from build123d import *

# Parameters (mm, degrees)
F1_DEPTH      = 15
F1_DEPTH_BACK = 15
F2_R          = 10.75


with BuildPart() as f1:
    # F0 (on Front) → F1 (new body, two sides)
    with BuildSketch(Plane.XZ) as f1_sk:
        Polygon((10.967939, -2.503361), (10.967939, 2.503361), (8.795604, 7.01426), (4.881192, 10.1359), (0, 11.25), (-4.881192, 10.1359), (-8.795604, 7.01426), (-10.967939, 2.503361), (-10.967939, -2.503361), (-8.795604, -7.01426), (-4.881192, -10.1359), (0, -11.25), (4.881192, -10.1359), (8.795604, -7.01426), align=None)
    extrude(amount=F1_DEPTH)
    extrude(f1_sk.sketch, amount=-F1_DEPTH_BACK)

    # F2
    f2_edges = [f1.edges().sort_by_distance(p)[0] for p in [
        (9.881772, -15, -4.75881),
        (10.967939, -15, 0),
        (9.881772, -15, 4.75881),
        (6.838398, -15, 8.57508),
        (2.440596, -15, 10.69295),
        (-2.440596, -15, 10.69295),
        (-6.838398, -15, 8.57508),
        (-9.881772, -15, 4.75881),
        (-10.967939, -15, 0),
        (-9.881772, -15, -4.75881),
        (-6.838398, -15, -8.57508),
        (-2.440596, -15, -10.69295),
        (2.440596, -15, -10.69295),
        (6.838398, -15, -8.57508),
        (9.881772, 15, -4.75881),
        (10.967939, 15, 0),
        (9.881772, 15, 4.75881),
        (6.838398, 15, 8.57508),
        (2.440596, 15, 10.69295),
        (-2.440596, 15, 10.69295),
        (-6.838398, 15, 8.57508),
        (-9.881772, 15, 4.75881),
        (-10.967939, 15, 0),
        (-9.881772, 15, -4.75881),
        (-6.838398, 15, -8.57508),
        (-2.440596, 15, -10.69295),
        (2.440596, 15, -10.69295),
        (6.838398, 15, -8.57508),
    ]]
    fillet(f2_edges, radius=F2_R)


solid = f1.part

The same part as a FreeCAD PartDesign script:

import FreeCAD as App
import Part
import Sketcher
from FreeCAD import Vector


def edges_at(feature, points):
    """Names of the edges that pass closest to the given points."""
    edges = feature.Shape.Edges
    near = lambda p: min(range(len(edges)), key=lambda i: edges[i].distToShape(Part.Vertex(*p))[0])
    return sorted({f"Edge{near(p) + 1}" for p in points})

doc = App.newDocument("Part")
params = doc.addObject("Spreadsheet::Sheet", "Params")
for row, (alias, value) in enumerate([
    ("pad1_length", "15 mm"),
    ("pad1_length2", "15 mm"),
    ("fillet_radius", "10.75 mm"),
], start=1):
    params.set(f"A{row}", alias)
    params.set(f"B{row}", "=" + value)
    params.setAlias(f"B{row}", alias)

body = doc.addObject("PartDesign::Body", "Body")

sketch1 = body.newObject("Sketcher::SketchObject", "Sketch")
sketch1.AttachmentSupport = (doc.getObject("XZ_Plane"), [""])
sketch1.MapMode = "FlatFace"
sketch1.addGeometry([
    Part.LineSegment(Vector(11, -3, 0), Vector(11, 3, 0)),
    Part.LineSegment(Vector(11, 3, 0), Vector(9, 7, 0)),
    Part.LineSegment(Vector(9, 7, 0), Vector(5, 10, 0)),
    Part.LineSegment(Vector(5, 10, 0), Vector(0, 11, 0)),
    Part.LineSegment(Vector(0, 11, 0), Vector(-5, 10, 0)),
    Part.LineSegment(Vector(-5, 10, 0), Vector(-9, 7, 0)),
    Part.LineSegment(Vector(-9, 7, 0), Vector(-11, 3, 0)),
    Part.LineSegment(Vector(-11, 3, 0), Vector(-11, -3, 0)),
    Part.LineSegment(Vector(-11, -3, 0), Vector(-9, -7, 0)),
    Part.LineSegment(Vector(-9, -7, 0), Vector(-5, -10, 0)),
    Part.LineSegment(Vector(-5, -10, 0), Vector(0, -11, 0)),
    Part.LineSegment(Vector(0, -11, 0), Vector(5, -10, 0)),
    Part.LineSegment(Vector(5, -10, 0), Vector(9, -7, 0)),
    Part.LineSegment(Vector(9, -7, 0), Vector(11, -3, 0)),
], False)
sketch1.addConstraint([
    Sketcher.Constraint("Coincident", 0, 2, 1, 1),
    Sketcher.Constraint("Coincident", 1, 2, 2, 1),
    Sketcher.Constraint("Coincident", 2, 2, 3, 1),
    Sketcher.Constraint("Coincident", 3, 2, 4, 1),
    Sketcher.Constraint("Coincident", 4, 2, 5, 1),
    Sketcher.Constraint("Coincident", 5, 2, 6, 1),
    Sketcher.Constraint("Coincident", 6, 2, 7, 1),
    Sketcher.Constraint("Coincident", 7, 2, 8, 1),
    Sketcher.Constraint("Coincident", 8, 2, 9, 1),
    Sketcher.Constraint("Coincident", 9, 2, 10, 1),
    Sketcher.Constraint("Coincident", 10, 2, 11, 1),
    Sketcher.Constraint("Coincident", 11, 2, 12, 1),
    Sketcher.Constraint("Coincident", 12, 2, 13, 1),
    Sketcher.Constraint("Coincident", 13, 2, 0, 1),
    Sketcher.Constraint("Vertical", 0),
    Sketcher.Constraint("Vertical", 7),
    Sketcher.Constraint("Symmetric", 0, 2, 7, 2, -1, 1),
    Sketcher.Constraint("Symmetric", 1, 2, 8, 2, -1, 1),
    Sketcher.Constraint("Symmetric", 2, 2, 9, 2, -1, 1),
    Sketcher.Constraint("Symmetric", 3, 2, 10, 2, -1, 1),
    Sketcher.Constraint("Symmetric", 4, 2, 11, 2, -1, 1),
    Sketcher.Constraint("Symmetric", 5, 2, 12, 2, -1, 1),
    Sketcher.Constraint("Symmetric", 2, 2, 4, 2, -2),
    Sketcher.Constraint("Symmetric", 1, 2, 5, 2, -2),
    Sketcher.Constraint("PointOnObject", 3, 2, -2),
    Sketcher.Constraint("Parallel", 6, 13),
    Sketcher.Constraint("Horizontal", 0, 2, 6, 2),
    Sketcher.Constraint("Equal", 1, 2),
    Sketcher.Constraint("Equal", 2, 3),
    Sketcher.Constraint("DistanceY", -1, 1, 3, 2, 11.25),
    Sketcher.Constraint("DistanceY", -1, 1, 2, 2, 10.1359),
    Sketcher.Constraint("DistanceY", 0, 2, 1, 2, 4.510899),
    Sketcher.Constraint("Distance", 1, 5.00672),
    Sketcher.Constraint("DistanceY", 0, 1, 0, 2, 5.006722),
])
pad1 = body.newObject("PartDesign::Pad", "Pad")
pad1.Profile = sketch1
pad1.Type = "TwoLengths"
pad1.setExpression("Length", "Params.pad1_length")
pad1.setExpression("Length2", "Params.pad1_length2")
doc.recompute()

fillet = body.newObject("PartDesign::Fillet", "Fillet")
fillet.Base = (pad1, edges_at(pad1, [
    (9.882, -15, -4.759),
    (10.968, -15, 0),
    (9.882, -15, 4.759),
    (6.838, -15, 8.575),
    (2.441, -15, 10.693),
    (-2.441, -15, 10.693),
    (-6.838, -15, 8.575),
    (-9.882, -15, 4.759),
    (-10.968, -15, 0),
    (-9.882, -15, -4.759),
    (-6.838, -15, -8.575),
    (-2.441, -15, -10.693),
    (2.441, -15, -10.693),
    (6.838, -15, -8.575),
    (9.882, 15, -4.759),
    (10.968, 15, 0),
    (9.882, 15, 4.759),
    (6.838, 15, 8.575),
    (2.441, 15, 10.693),
    (-2.441, 15, 10.693),
    (-6.838, 15, 8.575),
    (-9.882, 15, 4.759),
    (-10.968, 15, 0),
    (-9.882, 15, -4.759),
    (-6.838, 15, -8.575),
    (-2.441, 15, -10.693),
    (2.441, 15, -10.693),
    (6.838, 15, -8.575),
]))
fillet.setExpression("Radius", "Params.fillet_radius")

doc.recompute()
